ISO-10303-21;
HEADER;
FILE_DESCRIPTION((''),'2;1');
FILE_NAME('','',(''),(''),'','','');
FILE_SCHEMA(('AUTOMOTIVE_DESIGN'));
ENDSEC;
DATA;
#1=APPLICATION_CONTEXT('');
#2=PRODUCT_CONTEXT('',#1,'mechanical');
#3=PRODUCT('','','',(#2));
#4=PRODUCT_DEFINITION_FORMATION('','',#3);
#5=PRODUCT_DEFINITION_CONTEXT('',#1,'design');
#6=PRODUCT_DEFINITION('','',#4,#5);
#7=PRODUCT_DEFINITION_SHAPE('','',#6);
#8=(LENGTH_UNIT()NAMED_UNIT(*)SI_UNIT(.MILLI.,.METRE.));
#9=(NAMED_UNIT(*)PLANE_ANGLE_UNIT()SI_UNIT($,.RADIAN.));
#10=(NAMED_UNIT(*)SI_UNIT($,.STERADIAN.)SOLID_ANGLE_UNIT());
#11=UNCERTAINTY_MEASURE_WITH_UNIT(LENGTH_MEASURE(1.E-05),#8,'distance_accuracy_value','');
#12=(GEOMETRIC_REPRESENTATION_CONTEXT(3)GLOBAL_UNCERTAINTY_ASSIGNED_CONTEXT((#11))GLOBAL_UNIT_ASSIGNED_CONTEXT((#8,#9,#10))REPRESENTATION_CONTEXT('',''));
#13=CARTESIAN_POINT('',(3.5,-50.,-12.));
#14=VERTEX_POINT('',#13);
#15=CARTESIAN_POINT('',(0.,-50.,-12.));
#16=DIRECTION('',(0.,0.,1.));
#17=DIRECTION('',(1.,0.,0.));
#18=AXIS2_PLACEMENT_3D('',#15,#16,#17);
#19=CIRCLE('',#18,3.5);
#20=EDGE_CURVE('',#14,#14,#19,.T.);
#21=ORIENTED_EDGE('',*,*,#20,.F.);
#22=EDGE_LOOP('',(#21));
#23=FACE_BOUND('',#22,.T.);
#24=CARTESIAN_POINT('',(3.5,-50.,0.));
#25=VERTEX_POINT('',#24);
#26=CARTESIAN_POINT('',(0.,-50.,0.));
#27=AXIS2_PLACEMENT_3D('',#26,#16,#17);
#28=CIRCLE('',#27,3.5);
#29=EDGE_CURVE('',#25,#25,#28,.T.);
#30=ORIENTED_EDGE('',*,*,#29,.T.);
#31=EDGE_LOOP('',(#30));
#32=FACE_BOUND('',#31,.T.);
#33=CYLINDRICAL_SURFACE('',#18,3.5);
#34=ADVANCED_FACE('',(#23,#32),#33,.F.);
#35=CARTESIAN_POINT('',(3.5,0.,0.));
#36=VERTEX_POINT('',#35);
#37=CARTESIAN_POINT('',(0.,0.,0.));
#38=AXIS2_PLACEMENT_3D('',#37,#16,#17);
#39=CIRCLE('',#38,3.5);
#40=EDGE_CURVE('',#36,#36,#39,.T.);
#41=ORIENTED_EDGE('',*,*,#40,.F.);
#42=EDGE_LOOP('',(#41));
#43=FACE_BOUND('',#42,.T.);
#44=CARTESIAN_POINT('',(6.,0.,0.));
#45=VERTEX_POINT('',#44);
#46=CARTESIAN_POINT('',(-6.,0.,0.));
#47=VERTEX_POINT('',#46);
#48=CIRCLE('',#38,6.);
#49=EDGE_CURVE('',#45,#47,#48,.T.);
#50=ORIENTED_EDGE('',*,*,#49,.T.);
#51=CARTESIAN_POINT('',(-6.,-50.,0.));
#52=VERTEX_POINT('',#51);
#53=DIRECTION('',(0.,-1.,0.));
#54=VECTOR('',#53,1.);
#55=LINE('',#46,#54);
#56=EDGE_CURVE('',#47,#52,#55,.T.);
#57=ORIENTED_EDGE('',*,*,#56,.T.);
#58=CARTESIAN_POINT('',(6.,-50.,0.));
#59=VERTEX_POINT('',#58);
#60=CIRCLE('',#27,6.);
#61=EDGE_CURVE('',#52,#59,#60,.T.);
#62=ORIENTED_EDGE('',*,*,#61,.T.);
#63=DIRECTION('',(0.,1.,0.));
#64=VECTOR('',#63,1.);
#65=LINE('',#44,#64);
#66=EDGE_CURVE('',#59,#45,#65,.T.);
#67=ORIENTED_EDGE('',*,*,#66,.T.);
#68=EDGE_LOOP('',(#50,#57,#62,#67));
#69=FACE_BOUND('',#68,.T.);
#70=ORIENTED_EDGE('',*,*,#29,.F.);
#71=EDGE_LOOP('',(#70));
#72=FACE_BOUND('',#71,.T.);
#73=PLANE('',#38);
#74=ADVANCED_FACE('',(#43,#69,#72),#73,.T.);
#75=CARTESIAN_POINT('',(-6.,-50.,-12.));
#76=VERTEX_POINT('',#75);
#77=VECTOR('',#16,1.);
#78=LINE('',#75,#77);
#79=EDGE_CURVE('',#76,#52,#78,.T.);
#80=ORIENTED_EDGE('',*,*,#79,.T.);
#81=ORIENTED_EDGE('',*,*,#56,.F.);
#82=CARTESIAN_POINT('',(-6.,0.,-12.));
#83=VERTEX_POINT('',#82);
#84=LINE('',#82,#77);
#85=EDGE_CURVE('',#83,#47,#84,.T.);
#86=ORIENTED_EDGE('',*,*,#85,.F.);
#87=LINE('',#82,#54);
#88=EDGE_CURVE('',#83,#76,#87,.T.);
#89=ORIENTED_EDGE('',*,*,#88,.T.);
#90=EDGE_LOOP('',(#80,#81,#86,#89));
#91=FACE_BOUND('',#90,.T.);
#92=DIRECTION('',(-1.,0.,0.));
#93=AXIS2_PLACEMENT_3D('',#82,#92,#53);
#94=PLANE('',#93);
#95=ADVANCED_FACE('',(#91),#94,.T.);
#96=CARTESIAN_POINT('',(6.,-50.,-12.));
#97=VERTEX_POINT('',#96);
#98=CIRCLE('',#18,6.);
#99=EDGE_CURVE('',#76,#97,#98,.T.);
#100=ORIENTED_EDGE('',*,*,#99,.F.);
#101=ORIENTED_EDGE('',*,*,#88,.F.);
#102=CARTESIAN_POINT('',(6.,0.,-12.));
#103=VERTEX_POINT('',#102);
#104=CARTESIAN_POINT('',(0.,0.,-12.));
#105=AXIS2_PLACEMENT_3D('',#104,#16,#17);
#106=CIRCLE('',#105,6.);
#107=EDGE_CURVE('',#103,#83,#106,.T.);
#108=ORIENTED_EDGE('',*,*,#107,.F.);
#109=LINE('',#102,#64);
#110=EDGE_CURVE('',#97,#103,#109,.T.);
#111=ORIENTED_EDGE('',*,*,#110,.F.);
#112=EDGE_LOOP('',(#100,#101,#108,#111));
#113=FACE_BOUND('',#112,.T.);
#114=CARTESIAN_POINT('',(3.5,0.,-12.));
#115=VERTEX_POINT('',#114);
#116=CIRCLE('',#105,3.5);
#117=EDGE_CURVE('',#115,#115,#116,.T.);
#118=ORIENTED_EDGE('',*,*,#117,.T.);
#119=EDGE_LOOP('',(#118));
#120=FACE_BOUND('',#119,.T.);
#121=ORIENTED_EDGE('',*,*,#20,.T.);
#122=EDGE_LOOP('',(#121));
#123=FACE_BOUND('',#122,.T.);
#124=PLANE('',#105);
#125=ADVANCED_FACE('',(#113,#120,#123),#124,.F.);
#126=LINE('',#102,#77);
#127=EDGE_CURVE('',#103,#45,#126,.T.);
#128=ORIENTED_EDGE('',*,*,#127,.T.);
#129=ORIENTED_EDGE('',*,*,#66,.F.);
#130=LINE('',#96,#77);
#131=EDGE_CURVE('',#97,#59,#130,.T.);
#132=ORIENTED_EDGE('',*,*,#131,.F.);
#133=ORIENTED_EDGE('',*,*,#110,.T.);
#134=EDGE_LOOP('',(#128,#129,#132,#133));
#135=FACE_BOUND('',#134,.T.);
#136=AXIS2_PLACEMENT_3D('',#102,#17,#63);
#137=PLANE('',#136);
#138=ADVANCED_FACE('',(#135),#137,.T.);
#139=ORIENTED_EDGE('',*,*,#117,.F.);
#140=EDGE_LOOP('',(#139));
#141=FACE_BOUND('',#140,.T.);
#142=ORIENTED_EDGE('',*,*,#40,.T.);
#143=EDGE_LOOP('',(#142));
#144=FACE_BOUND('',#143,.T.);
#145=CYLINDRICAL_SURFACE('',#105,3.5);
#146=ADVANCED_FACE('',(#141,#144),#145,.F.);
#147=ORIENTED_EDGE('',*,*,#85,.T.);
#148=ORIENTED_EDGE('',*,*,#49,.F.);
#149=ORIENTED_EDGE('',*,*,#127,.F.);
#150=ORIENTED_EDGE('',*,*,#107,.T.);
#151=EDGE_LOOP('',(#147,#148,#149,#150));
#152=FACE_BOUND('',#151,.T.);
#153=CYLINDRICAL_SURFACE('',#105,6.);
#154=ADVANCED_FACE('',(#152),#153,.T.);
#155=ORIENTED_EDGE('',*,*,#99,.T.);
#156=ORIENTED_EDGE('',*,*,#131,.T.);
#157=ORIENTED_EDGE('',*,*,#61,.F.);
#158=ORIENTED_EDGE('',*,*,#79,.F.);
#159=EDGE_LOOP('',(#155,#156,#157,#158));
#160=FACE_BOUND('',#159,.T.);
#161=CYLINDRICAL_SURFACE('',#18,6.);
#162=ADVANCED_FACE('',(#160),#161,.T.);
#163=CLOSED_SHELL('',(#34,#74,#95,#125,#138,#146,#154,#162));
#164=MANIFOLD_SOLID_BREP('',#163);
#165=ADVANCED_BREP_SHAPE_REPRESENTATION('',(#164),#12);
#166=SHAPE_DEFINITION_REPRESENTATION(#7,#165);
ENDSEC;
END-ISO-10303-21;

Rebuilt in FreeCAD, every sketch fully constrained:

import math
import FreeCAD as App
import Part
import Sketcher
Q = App.Units.Quantity

doc = App.newDocument("Part")
body = doc.addObject("PartDesign::Body", "Body")

# Sketch on XY plane
sketch1 = body.newObject("Sketcher::SketchObject", "Sketch")
sketch1.AttachmentSupport = (doc.getObject("XY_Plane"), [""])
sketch1.MapMode = "FlatFace"
sketch1.addGeometry([
    Part.LineSegment(App.Vector(-6, 0, 0), App.Vector(-6, -50, 0)),  # 0
    Part.ArcOfCircle(Part.Circle(App.Vector(0, -50, 0), App.Vector(0, 0, 1), 6), math.radians(180), math.radians(360)),  # 1
    Part.LineSegment(App.Vector(6, -50, 0), App.Vector(6, 0, 0)),  # 2
    Part.ArcOfCircle(Part.Circle(App.Vector(0, 0, 0), App.Vector(0, 0, 1), 6), math.radians(0), math.radians(180)),  # 3
    Part.Circle(App.Vector(0, -50, 0), App.Vector(0, 0, 1), 3.5),  # 4
    Part.Circle(App.Vector(0, 0, 0), App.Vector(0, 0, 1), 3.5),  # 5
], False)
sketch1.addConstraint([
    Sketcher.Constraint("Tangent", 0, 2, 1, 1),
    Sketcher.Constraint("Tangent", 1, 2, 2, 1),
    Sketcher.Constraint("Tangent", 2, 2, 3, 1),
    Sketcher.Constraint("Tangent", 3, 2, 0, 1),
    Sketcher.Constraint("Vertical", 0),
    Sketcher.Constraint("Vertical", 2),
    Sketcher.Constraint("Coincident", 3, 3, -1, 1),
    Sketcher.Constraint("Coincident", 5, 3, -1, 1),
    Sketcher.Constraint("Coincident", 4, 3, 1, 3),
    Sketcher.Constraint("Equal", 4, 5),
    Sketcher.Constraint("Diameter", 4, Q("7 mm")),
    Sketcher.Constraint("Radius", 1, Q("6 mm")),
    Sketcher.Constraint("DistanceY", 0, 2, 0, 1, Q("50 mm")),
])
pad1 = body.newObject("PartDesign::Pad", "Pad")
pad1.Profile = sketch1
pad1.Length = 12
pad1.Reversed = True

doc.recompute()
